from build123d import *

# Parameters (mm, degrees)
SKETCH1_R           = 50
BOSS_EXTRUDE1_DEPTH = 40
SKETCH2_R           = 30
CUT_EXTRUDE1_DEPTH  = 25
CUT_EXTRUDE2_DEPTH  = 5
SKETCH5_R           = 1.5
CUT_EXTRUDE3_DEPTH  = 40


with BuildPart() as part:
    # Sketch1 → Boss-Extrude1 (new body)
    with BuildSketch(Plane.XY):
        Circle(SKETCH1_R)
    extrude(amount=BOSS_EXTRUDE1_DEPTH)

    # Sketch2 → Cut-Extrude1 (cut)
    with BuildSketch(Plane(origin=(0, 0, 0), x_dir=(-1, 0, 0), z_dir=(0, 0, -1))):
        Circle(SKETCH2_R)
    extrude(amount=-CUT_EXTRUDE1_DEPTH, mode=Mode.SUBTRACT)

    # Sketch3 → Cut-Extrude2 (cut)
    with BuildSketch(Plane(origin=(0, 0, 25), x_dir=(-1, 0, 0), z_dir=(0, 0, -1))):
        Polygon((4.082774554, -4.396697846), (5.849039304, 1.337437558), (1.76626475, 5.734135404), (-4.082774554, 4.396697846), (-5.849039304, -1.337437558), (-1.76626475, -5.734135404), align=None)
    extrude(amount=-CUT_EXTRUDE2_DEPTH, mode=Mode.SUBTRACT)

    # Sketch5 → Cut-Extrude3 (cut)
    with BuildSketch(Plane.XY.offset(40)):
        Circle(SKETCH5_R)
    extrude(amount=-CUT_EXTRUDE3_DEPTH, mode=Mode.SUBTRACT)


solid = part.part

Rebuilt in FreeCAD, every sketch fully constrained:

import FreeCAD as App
import Part
import Sketcher

V = App.Vector


def add_polygon(sketch, points):
    """Adds a closed chain of lines whose ends are joined by coincident constraints."""
    first, n = sketch.GeometryCount, len(points)
    for a, b in zip(points, points[1:] + points[:1]):
        sketch.addGeometry(Part.LineSegment(App.Vector(*a, 0), App.Vector(*b, 0)), False)
    for i in range(n):
        sketch.addConstraint(Sketcher.Constraint("Coincident", first + i, 2, first + (i + 1) % n, 1))

doc = App.newDocument("Part")
body = doc.addObject("PartDesign::Body", "Body")

sketch1 = doc.addObject("Sketcher::SketchObject", "Sketch")
body.addObject(sketch1)
sketch1.AttachmentSupport = (doc.XY_Plane, [""])
sketch1.MapMode = "FlatFace"
sketch1.addGeometry(Part.Circle(V(0, 0, 0), V(0, 0, 1), 50), False)
sketch1.addConstraint([
    Sketcher.Constraint("Coincident", 0, 3, -1, 1),
    Sketcher.Constraint("Diameter", 0, 100.0),
])
pad1 = doc.addObject("PartDesign::Pad", "Pad")
body.addObject(pad1)
pad1.Profile = sketch1
pad1.Length = 40

sketch2 = doc.addObject("Sketcher::SketchObject", "Sketch001")
body.addObject(sketch2)
sketch2.AttachmentSupport = (doc.XY_Plane, [""])
sketch2.MapMode = "FlatFace"
sketch2.addGeometry(Part.Circle(V(0, 0, 0), V(0, 0, 1), 30), False)
sketch2.addConstraint([
    Sketcher.Constraint("Coincident", 0, 3, -1, 1),
    Sketcher.Constraint("Diameter", 0, 60.0),
])
pocket1 = doc.addObject("PartDesign::Pocket", "Pocket")
body.addObject(pocket1)
pocket1.Profile = sketch2
pocket1.Length = 25
pocket1.Reversed = True

sketch3 = doc.addObject("Sketcher::SketchObject", "Sketch002")
body.addObject(sketch3)
sketch3.AttachmentSupport = (doc.XY_Plane, [""])
sketch3.MapMode = "FlatFace"
sketch3.AttachmentOffset = App.Placement(V(0, 0, 25), App.Rotation())
add_polygon(sketch3, [(-4, -4), (-6, 1), (-2, 6), (4, 4), (6, -1), (2, -6)])
sketch3.addConstraint([
    Sketcher.Constraint("Symmetric", 0, 2, 3, 2, -1, 1),
    Sketcher.Constraint("Symmetric", 1, 2, 4, 2, -1, 1),
    Sketcher.Constraint("Symmetric", 2, 2, 5, 2, -1, 1),
    Sketcher.Constraint("Equal", 0, 1),
    Sketcher.Constraint("Equal", 1, 2),
    Sketcher.Constraint("Distance", 0, 6.0),
    Sketcher.Constraint("DistanceX", 0, 2, -1, 1, 5.849039),
    Sketcher.Constraint("DistanceX", 1, 2, 2, 2, 5.849039),
    Sketcher.Constraint("DistanceY", 0, 2, 2, 2, 3.05926),
])
pocket2 = doc.addObject("PartDesign::Pocket", "Pocket001")
body.addObject(pocket2)
pocket2.Profile = sketch3
pocket2.Length = 5
pocket2.Reversed = True

sketch4 = doc.addObject("Sketcher::SketchObject", "Sketch003")
body.addObject(sketch4)
sketch4.AttachmentSupport = (doc.XY_Plane, [""])
sketch4.MapMode = "FlatFace"
sketch4.AttachmentOffset = App.Placement(V(0, 0, 40), App.Rotation())
sketch4.addGeometry(Part.Circle(V(0, 0, 0), V(0, 0, 1), 1.5), False)
sketch4.addConstraint([
    Sketcher.Constraint("Coincident", 0, 3, -1, 1),
    Sketcher.Constraint("Diameter", 0, 3.0),
])
pocket3 = doc.addObject("PartDesign::Pocket", "Pocket002")
body.addObject(pocket3)
pocket3.Profile = sketch4
pocket3.Length = 40

doc.recompute()
